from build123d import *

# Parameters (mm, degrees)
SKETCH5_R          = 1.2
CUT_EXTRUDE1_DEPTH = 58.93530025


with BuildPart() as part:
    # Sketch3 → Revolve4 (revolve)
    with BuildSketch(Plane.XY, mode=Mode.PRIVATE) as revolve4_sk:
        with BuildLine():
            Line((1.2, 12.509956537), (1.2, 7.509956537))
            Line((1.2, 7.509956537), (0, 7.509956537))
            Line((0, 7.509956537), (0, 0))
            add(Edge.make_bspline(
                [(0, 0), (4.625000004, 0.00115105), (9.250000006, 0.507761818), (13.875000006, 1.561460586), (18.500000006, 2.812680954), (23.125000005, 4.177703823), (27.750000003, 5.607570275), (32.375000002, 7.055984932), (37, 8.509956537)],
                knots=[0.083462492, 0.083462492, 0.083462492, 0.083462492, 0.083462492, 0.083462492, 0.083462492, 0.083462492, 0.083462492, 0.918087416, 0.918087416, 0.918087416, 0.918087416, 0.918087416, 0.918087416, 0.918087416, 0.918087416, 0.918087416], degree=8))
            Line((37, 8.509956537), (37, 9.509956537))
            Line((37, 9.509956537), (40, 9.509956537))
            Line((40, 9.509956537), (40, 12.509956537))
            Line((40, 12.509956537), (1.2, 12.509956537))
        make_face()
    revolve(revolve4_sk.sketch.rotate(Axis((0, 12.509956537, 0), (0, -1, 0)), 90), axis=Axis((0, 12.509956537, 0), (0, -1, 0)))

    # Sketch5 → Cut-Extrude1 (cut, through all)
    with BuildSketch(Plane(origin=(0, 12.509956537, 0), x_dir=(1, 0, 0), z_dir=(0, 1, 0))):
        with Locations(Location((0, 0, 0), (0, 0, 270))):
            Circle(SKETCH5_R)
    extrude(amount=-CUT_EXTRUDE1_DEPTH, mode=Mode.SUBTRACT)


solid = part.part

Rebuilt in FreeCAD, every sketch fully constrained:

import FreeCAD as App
import Part
import Sketcher

V = App.Vector

doc = App.newDocument("Part")
body = doc.addObject("PartDesign::Body", "Body")

# Sketch on XY plane
sketch1 = doc.addObject("Sketcher::SketchObject", "Sketch")
body.addObject(sketch1)
sketch1.AttachmentSupport = (doc.XY_Plane, [""])
sketch1.MapMode = "FlatFace"
sketch1.addGeometry(Part.LineSegment(V(1.2, 12.509957, 0), V(1.2, 7.509957, 0)), False)
sketch1.addGeometry(Part.LineSegment(V(1.2, 7.509957, 0), V(0, 7.509957, 0)), False)
sketch1.addGeometry(Part.LineSegment(V(0, 7.509957, 0), V(0, 0, 0)), False)
sketch1.addGeometry(Part.BSplineCurve([V(0, 0, 0), V(4.625, 0.001151, 0), V(9.25, 0.507762, 0), V(13.875, 1.561461, 0), V(18.5, 2.812681, 0), V(23.125, 4.177704, 0), V(27.75, 5.60757, 0), V(32.375, 7.055985, 0), V(37, 8.509957, 0)], [9, 9], [0.083462492, 0.918087416], False, 8, [1, 1, 1, 1, 1, 1, 1, 1, 1], False), False)
sketch1.addGeometry(Part.LineSegment(V(37, 8.509957, 0), V(37, 9.509957, 0)), False)
sketch1.addGeometry(Part.LineSegment(V(37, 9.509957, 0), V(40, 9.509957, 0)), False)
sketch1.addGeometry(Part.LineSegment(V(40, 9.509957, 0), V(40, 12.509957, 0)), False)
sketch1.addGeometry(Part.LineSegment(V(40, 12.509957, 0), V(1.2, 12.509957, 0)), False)
sketch1.addConstraint(Sketcher.Constraint("Block", 3))
sketch1.addConstraint(Sketcher.Constraint("Coincident", 0, 2, 1, 1))
sketch1.addConstraint(Sketcher.Constraint("Coincident", 1, 2, 2, 1))
sketch1.addConstraint(Sketcher.Constraint("Coincident", 2, 2, 3, 1))
sketch1.addConstraint(Sketcher.Constraint("Coincident", 3, 2, 4, 1))
sketch1.addConstraint(Sketcher.Constraint("Coincident", 4, 2, 5, 1))
sketch1.addConstraint(Sketcher.Constraint("Coincident", 5, 2, 6, 1))
sketch1.addConstraint(Sketcher.Constraint("Coincident", 6, 2, 7, 1))
sketch1.addConstraint(Sketcher.Constraint("Coincident", 7, 2, 0, 1))
sketch1.addConstraint(Sketcher.Constraint("Vertical", 0))
sketch1.addConstraint(Sketcher.Constraint("Horizontal", 1))
sketch1.addConstraint(Sketcher.Constraint("Vertical", 2))
sketch1.addConstraint(Sketcher.Constraint("Vertical", 4))
sketch1.addConstraint(Sketcher.Constraint("Horizontal", 5))
sketch1.addConstraint(Sketcher.Constraint("Vertical", 6))
sketch1.addConstraint(Sketcher.Constraint("Horizontal", 7))
sketch1.addConstraint(Sketcher.Constraint("Equal", 5, 6))
sketch1.addConstraint(Sketcher.Constraint("DistanceX", 5, 1, 5, 2, 3.0))
sketch1.addConstraint(Sketcher.Constraint("DistanceY", 0, 2, 0, 1, 5.0))
sketch1.addConstraint(Sketcher.Constraint("DistanceY", 4, 1, 4, 2, 1.0))
sketch1.addConstraint(Sketcher.Constraint("DistanceX", 1, 2, 1, 1, 1.2))
revolution = doc.addObject("PartDesign::Revolution", "Revolution")
body.addObject(revolution)
revolution.Profile = sketch1
revolution.ReferenceAxis = (sketch1, ["V_Axis"])
revolution.Angle = 360

# Sketch on XZ plane
sketch2 = doc.addObject("Sketcher::SketchObject", "Sketch001")
body.addObject(sketch2)
sketch2.AttachmentSupport = (doc.XZ_Plane, [""])
sketch2.MapMode = "FlatFace"
sketch2.AttachmentOffset = App.Placement(V(0, 0, -12.509957), App.Rotation())
sketch2.addGeometry(Part.Circle(V(0, 0, 0), V(0, 0, 1), 1.2), False)
sketch2.addConstraint(Sketcher.Constraint("Coincident", 0, 3, -1, 1))
sketch2.addConstraint(Sketcher.Constraint("Diameter", 0, 2.4))
pocket1 = doc.addObject("PartDesign::Pocket", "Pocket")
body.addObject(pocket1)
pocket1.Profile = sketch2
pocket1.Type = "ThroughAll"
pocket1.Reversed = True

doc.recompute()
